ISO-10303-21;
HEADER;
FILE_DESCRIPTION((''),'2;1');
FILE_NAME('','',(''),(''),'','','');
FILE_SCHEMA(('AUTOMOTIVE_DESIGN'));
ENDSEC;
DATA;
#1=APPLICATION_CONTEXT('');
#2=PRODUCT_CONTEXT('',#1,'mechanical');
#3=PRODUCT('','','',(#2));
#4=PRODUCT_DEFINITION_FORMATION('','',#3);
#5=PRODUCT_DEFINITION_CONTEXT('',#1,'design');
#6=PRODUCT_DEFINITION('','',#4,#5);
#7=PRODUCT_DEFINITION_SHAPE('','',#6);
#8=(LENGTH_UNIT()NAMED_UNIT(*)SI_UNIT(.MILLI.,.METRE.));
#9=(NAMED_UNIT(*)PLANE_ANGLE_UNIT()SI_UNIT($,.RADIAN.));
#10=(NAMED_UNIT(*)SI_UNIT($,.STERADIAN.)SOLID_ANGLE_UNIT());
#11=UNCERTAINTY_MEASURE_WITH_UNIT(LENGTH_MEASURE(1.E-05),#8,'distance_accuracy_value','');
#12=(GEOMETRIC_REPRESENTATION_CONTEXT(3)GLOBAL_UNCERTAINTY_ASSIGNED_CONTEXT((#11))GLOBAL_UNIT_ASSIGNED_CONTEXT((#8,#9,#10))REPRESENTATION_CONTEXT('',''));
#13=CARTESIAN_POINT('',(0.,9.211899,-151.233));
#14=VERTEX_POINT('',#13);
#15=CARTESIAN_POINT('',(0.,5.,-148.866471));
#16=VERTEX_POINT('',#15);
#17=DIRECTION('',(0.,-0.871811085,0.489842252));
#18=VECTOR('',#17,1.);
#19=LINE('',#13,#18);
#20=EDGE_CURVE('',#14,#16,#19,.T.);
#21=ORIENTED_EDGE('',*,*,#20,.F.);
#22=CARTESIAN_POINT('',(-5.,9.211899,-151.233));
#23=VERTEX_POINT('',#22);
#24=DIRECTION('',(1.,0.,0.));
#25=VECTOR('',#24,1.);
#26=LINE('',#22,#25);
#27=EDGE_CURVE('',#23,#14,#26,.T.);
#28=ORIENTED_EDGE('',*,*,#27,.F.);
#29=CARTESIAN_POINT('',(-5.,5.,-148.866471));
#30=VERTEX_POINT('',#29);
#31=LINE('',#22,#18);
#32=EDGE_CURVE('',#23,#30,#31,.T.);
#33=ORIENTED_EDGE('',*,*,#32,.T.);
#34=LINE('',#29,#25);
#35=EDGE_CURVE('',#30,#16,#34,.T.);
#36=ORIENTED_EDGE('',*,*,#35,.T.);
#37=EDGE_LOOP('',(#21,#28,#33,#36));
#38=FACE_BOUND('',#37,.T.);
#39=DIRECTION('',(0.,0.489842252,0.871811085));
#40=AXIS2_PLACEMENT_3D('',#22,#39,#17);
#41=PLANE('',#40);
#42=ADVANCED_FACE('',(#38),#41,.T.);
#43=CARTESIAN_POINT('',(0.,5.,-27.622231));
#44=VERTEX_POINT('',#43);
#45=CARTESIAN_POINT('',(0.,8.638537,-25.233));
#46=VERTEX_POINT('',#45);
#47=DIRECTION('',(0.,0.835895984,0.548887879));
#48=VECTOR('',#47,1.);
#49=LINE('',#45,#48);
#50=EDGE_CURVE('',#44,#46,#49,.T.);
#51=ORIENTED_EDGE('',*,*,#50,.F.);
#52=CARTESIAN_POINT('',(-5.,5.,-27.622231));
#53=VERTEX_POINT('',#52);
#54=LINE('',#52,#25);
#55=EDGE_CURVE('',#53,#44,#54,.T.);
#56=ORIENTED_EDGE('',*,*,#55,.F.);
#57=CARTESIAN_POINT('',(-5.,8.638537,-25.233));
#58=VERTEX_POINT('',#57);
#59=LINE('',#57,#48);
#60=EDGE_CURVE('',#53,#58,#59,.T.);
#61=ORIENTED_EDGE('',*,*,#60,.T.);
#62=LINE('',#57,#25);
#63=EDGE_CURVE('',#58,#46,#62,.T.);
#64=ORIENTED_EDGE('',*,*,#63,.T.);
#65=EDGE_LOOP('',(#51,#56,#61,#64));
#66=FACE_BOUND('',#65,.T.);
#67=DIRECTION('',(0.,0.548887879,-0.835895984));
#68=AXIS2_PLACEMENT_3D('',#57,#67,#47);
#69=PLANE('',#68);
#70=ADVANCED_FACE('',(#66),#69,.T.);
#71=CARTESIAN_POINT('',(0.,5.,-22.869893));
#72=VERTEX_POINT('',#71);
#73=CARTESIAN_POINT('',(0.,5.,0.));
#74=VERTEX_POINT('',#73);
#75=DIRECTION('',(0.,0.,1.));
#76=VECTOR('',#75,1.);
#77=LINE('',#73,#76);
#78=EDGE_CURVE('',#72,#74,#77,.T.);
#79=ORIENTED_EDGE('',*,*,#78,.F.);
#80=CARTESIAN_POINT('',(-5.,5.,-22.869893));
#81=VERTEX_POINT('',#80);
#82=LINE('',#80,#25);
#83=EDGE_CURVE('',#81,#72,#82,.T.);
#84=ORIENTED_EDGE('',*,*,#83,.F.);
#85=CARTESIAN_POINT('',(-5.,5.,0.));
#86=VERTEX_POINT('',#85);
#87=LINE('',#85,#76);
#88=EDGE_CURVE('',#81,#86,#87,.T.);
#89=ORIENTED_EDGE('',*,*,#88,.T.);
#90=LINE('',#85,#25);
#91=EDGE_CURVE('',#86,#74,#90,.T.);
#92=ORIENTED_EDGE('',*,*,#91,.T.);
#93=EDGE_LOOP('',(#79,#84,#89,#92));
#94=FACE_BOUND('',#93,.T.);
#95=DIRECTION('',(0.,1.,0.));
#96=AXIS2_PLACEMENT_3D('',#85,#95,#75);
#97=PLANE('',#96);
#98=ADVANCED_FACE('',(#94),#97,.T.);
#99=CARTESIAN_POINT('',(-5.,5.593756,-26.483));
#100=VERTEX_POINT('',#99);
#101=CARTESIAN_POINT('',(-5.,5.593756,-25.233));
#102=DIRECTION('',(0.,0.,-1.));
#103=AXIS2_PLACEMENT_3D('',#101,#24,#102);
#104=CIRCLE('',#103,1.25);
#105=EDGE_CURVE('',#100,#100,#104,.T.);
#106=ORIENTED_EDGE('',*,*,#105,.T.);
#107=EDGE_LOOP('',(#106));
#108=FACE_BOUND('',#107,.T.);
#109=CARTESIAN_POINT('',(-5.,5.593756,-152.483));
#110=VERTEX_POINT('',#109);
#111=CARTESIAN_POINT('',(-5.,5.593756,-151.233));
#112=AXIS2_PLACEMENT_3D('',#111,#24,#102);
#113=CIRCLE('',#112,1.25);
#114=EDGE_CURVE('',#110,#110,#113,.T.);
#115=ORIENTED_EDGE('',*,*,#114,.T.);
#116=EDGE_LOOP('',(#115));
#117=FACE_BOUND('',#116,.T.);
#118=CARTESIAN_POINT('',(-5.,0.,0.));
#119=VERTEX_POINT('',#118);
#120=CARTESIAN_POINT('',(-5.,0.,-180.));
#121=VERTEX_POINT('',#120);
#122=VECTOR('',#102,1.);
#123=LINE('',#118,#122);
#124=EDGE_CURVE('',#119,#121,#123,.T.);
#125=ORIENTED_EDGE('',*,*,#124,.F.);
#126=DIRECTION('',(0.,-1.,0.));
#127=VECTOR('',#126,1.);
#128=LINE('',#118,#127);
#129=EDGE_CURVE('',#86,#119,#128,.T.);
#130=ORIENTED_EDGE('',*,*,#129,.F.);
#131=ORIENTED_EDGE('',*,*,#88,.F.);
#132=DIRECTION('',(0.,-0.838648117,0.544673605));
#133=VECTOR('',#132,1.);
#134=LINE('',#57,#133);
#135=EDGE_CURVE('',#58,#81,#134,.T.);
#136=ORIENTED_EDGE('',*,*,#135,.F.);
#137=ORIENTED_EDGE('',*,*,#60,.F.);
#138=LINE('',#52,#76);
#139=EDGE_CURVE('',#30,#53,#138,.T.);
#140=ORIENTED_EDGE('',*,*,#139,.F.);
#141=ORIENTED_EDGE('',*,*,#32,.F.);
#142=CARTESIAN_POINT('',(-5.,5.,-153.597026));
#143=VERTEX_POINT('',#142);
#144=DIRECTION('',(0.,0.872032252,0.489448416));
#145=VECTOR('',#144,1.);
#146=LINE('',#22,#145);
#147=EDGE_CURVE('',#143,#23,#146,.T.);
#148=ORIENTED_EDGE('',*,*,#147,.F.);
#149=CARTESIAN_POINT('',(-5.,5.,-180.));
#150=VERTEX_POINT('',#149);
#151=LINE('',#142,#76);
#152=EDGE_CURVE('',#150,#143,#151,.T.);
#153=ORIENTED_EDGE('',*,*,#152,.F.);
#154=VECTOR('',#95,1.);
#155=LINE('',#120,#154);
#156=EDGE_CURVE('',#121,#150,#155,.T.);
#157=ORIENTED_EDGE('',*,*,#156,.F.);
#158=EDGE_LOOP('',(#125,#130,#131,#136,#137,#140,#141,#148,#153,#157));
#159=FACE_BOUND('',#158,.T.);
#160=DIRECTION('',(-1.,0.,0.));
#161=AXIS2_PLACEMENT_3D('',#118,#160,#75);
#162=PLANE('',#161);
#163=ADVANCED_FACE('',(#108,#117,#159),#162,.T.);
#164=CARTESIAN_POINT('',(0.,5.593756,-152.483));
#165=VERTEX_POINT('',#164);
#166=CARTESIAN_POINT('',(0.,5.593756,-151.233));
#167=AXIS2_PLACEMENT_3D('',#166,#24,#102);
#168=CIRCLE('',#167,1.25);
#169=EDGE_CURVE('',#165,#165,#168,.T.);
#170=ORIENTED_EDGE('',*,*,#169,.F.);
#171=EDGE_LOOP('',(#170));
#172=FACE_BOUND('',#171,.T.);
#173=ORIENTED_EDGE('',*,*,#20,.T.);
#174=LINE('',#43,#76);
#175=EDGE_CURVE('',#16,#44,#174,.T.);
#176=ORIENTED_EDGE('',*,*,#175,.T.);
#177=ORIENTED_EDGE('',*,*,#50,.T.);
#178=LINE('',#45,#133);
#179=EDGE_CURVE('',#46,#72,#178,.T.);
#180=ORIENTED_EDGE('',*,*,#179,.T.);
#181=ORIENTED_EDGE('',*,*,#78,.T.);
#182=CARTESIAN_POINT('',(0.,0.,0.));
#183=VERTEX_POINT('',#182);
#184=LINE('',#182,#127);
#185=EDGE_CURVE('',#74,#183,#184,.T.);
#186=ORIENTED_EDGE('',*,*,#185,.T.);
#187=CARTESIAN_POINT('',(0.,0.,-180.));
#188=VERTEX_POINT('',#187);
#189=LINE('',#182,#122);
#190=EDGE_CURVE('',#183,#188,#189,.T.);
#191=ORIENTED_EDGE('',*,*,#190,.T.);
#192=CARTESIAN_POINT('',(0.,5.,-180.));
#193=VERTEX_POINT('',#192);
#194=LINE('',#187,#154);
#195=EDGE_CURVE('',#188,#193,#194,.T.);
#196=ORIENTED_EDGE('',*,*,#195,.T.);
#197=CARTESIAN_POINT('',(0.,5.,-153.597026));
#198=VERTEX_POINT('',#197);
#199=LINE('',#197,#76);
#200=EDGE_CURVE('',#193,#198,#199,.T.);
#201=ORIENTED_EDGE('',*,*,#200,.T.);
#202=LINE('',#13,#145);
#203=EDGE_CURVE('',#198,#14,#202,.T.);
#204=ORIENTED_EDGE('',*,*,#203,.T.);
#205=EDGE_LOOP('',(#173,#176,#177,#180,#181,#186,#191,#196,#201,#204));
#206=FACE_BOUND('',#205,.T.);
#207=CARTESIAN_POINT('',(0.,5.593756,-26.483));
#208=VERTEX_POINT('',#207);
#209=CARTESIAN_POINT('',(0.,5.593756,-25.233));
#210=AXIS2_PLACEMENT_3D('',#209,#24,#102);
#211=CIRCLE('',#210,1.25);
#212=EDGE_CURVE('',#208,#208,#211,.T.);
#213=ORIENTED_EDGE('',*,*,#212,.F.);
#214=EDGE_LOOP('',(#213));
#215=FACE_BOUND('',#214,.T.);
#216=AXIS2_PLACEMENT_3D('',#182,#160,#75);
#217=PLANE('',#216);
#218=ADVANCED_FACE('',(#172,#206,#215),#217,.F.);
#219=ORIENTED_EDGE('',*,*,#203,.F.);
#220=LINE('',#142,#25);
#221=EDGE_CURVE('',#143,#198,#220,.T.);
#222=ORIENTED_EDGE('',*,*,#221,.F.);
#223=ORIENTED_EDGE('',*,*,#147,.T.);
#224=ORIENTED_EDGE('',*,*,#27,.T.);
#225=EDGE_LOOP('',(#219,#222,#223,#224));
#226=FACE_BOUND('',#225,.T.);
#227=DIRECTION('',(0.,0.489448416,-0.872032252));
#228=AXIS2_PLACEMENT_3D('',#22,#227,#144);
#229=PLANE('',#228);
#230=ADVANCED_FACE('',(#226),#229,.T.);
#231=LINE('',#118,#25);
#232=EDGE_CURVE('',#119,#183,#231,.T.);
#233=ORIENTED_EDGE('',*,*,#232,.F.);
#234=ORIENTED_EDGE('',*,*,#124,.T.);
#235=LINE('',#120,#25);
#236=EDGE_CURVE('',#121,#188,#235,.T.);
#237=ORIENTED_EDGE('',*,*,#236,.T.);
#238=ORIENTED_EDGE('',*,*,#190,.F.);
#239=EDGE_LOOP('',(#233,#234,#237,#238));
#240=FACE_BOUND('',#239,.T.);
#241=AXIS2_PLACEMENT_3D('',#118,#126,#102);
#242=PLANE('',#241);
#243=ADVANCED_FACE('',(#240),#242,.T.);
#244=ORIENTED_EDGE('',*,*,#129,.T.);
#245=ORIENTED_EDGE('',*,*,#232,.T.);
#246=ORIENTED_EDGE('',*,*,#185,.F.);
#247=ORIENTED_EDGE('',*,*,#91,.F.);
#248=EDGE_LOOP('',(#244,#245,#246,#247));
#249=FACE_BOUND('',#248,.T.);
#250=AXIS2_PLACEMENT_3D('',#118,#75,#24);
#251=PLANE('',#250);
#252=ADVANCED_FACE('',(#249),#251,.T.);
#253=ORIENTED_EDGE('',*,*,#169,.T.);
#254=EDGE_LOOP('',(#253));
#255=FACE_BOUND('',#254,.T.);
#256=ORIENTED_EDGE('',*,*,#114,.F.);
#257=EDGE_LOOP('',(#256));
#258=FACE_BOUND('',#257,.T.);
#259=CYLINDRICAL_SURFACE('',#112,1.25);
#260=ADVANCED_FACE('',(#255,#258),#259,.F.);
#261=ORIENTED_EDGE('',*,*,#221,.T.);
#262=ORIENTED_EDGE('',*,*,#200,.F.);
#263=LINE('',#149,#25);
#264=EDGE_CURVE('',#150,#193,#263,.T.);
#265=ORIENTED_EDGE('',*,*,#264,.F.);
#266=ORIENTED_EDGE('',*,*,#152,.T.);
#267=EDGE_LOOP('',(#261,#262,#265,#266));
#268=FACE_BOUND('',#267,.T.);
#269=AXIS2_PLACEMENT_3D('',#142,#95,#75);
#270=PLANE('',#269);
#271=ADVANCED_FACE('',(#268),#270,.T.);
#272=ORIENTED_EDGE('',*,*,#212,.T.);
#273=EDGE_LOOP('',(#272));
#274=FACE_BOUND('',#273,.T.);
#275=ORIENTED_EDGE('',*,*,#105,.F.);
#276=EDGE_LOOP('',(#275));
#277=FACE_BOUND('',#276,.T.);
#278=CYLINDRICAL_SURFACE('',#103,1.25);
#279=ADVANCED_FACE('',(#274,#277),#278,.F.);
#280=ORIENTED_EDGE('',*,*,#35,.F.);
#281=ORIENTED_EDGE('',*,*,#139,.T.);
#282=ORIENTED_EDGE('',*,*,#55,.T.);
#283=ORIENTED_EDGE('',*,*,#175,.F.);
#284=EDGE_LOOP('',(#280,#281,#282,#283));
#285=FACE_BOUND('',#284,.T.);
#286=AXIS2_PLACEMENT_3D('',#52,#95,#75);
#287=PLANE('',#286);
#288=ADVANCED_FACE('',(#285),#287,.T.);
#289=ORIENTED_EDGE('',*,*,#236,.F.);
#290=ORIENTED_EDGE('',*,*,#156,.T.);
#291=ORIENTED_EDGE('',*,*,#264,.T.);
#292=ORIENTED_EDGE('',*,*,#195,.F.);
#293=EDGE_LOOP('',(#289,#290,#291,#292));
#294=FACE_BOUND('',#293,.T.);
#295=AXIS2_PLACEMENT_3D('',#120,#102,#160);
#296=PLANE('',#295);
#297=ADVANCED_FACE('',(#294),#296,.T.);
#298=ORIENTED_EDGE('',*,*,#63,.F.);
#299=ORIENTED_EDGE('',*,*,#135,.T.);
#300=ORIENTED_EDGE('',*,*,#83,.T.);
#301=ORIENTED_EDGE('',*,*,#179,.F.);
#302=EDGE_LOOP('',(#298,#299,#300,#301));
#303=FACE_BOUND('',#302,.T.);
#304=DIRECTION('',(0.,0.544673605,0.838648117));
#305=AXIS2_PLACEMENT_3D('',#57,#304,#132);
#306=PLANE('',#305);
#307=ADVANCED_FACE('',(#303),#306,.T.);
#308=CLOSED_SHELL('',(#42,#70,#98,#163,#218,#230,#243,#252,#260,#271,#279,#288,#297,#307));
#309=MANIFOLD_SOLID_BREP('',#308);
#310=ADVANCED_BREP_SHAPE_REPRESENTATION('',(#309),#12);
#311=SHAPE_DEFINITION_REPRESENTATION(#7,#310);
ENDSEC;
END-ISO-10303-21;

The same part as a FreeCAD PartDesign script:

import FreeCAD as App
import Part
import Sketcher


def add_polygon(sketch, points):
    """Adds a closed chain of lines whose ends are joined by coincident constraints."""
    first, n = sketch.GeometryCount, len(points)
    for a, b in zip(points, points[1:] + points[:1]):
        sketch.addGeometry(Part.LineSegment(App.Vector(*a, 0), App.Vector(*b, 0)), False)
    for i in range(n):
        sketch.addConstraint(Sketcher.Constraint("Coincident", first + i, 2, first + (i + 1) % n, 1))

doc = App.newDocument("Part")
body = doc.addObject("PartDesign::Body", "Body")

sketch1 = doc.addObject("Sketcher::SketchObject", "Sketch")
body.addObject(sketch1)
sketch1.AttachmentSupport = (doc.YZ_Plane, [""])
sketch1.MapMode = "FlatFace"
add_polygon(sketch1, [(8.638537, -25.233), (5, -22.869893), (5, 0), (0, 0), (0, -180), (5, -180), (5, -153.597026), (9.211899, -151.233), (5, -148.866471), (5, -27.622231)])
sketch1.addGeometry(Part.Circle(App.Vector(5.593756, -25.233, 0), App.Vector(0, 0, 1), 1.25), False)
sketch1.addGeometry(Part.Circle(App.Vector(5.593756, -151.233, 0), App.Vector(0, 0, 1), 1.25), False)
sketch1.addConstraint([
    Sketcher.Constraint("Vertical", 1),
    Sketcher.Constraint("Horizontal", 2),
    Sketcher.Constraint("Vertical", 3),
    Sketcher.Constraint("Horizontal", 4),
    Sketcher.Constraint("Vertical", 5),
    Sketcher.Constraint("Vertical", 8),
    Sketcher.Constraint("Coincident", 2, 2, -1, 1),
    Sketcher.Constraint("Equal", 10, 11),
    Sketcher.Constraint("Horizontal", 11, 3, 6, 2),
    Sketcher.Constraint("Horizontal", 10, 3, 9, 2),
    Sketcher.Constraint("Vertical", 10, 3, 11, 3),
    Sketcher.Constraint("Vertical", 1, 2, 4, 2),
    Sketcher.Constraint("Vertical", 5, 2, 7, 2),
    Sketcher.Constraint("Diameter", 10, 2.5),
    Sketcher.Constraint("DistanceX", 2, 2, 2, 1, 5.0),
    Sketcher.Constraint("DistanceY", 3, 2, 3, 1, 180.0),
    Sketcher.Constraint("DistanceY", 11, 3, 10, 3, 126.0),
    Sketcher.Constraint("DistanceY", 10, 3, -1, 1, 25.233),
    Sketcher.Constraint("DistanceY", 8, 1, 8, 2, 121.24424),
    Sketcher.Constraint("DistanceX", -1, 1, 6, 2, 9.211899),
    Sketcher.Constraint("Distance", 6, 4.82998),
    Sketcher.Constraint("Distance", 9, 4.352859),
    Sketcher.Constraint("DistanceY", 1, 1, 1, 2, 22.869893),
    Sketcher.Constraint("DistanceY", 7, 2, -1, 1, 148.866471),
    Sketcher.Constraint("DistanceX", 10, 3, 9, 2, 3.044781),
])
pad1 = doc.addObject("PartDesign::Pad", "Pad")
body.addObject(pad1)
pad1.Profile = sketch1
pad1.Length = 5
pad1.Reversed = True

doc.recompute()
